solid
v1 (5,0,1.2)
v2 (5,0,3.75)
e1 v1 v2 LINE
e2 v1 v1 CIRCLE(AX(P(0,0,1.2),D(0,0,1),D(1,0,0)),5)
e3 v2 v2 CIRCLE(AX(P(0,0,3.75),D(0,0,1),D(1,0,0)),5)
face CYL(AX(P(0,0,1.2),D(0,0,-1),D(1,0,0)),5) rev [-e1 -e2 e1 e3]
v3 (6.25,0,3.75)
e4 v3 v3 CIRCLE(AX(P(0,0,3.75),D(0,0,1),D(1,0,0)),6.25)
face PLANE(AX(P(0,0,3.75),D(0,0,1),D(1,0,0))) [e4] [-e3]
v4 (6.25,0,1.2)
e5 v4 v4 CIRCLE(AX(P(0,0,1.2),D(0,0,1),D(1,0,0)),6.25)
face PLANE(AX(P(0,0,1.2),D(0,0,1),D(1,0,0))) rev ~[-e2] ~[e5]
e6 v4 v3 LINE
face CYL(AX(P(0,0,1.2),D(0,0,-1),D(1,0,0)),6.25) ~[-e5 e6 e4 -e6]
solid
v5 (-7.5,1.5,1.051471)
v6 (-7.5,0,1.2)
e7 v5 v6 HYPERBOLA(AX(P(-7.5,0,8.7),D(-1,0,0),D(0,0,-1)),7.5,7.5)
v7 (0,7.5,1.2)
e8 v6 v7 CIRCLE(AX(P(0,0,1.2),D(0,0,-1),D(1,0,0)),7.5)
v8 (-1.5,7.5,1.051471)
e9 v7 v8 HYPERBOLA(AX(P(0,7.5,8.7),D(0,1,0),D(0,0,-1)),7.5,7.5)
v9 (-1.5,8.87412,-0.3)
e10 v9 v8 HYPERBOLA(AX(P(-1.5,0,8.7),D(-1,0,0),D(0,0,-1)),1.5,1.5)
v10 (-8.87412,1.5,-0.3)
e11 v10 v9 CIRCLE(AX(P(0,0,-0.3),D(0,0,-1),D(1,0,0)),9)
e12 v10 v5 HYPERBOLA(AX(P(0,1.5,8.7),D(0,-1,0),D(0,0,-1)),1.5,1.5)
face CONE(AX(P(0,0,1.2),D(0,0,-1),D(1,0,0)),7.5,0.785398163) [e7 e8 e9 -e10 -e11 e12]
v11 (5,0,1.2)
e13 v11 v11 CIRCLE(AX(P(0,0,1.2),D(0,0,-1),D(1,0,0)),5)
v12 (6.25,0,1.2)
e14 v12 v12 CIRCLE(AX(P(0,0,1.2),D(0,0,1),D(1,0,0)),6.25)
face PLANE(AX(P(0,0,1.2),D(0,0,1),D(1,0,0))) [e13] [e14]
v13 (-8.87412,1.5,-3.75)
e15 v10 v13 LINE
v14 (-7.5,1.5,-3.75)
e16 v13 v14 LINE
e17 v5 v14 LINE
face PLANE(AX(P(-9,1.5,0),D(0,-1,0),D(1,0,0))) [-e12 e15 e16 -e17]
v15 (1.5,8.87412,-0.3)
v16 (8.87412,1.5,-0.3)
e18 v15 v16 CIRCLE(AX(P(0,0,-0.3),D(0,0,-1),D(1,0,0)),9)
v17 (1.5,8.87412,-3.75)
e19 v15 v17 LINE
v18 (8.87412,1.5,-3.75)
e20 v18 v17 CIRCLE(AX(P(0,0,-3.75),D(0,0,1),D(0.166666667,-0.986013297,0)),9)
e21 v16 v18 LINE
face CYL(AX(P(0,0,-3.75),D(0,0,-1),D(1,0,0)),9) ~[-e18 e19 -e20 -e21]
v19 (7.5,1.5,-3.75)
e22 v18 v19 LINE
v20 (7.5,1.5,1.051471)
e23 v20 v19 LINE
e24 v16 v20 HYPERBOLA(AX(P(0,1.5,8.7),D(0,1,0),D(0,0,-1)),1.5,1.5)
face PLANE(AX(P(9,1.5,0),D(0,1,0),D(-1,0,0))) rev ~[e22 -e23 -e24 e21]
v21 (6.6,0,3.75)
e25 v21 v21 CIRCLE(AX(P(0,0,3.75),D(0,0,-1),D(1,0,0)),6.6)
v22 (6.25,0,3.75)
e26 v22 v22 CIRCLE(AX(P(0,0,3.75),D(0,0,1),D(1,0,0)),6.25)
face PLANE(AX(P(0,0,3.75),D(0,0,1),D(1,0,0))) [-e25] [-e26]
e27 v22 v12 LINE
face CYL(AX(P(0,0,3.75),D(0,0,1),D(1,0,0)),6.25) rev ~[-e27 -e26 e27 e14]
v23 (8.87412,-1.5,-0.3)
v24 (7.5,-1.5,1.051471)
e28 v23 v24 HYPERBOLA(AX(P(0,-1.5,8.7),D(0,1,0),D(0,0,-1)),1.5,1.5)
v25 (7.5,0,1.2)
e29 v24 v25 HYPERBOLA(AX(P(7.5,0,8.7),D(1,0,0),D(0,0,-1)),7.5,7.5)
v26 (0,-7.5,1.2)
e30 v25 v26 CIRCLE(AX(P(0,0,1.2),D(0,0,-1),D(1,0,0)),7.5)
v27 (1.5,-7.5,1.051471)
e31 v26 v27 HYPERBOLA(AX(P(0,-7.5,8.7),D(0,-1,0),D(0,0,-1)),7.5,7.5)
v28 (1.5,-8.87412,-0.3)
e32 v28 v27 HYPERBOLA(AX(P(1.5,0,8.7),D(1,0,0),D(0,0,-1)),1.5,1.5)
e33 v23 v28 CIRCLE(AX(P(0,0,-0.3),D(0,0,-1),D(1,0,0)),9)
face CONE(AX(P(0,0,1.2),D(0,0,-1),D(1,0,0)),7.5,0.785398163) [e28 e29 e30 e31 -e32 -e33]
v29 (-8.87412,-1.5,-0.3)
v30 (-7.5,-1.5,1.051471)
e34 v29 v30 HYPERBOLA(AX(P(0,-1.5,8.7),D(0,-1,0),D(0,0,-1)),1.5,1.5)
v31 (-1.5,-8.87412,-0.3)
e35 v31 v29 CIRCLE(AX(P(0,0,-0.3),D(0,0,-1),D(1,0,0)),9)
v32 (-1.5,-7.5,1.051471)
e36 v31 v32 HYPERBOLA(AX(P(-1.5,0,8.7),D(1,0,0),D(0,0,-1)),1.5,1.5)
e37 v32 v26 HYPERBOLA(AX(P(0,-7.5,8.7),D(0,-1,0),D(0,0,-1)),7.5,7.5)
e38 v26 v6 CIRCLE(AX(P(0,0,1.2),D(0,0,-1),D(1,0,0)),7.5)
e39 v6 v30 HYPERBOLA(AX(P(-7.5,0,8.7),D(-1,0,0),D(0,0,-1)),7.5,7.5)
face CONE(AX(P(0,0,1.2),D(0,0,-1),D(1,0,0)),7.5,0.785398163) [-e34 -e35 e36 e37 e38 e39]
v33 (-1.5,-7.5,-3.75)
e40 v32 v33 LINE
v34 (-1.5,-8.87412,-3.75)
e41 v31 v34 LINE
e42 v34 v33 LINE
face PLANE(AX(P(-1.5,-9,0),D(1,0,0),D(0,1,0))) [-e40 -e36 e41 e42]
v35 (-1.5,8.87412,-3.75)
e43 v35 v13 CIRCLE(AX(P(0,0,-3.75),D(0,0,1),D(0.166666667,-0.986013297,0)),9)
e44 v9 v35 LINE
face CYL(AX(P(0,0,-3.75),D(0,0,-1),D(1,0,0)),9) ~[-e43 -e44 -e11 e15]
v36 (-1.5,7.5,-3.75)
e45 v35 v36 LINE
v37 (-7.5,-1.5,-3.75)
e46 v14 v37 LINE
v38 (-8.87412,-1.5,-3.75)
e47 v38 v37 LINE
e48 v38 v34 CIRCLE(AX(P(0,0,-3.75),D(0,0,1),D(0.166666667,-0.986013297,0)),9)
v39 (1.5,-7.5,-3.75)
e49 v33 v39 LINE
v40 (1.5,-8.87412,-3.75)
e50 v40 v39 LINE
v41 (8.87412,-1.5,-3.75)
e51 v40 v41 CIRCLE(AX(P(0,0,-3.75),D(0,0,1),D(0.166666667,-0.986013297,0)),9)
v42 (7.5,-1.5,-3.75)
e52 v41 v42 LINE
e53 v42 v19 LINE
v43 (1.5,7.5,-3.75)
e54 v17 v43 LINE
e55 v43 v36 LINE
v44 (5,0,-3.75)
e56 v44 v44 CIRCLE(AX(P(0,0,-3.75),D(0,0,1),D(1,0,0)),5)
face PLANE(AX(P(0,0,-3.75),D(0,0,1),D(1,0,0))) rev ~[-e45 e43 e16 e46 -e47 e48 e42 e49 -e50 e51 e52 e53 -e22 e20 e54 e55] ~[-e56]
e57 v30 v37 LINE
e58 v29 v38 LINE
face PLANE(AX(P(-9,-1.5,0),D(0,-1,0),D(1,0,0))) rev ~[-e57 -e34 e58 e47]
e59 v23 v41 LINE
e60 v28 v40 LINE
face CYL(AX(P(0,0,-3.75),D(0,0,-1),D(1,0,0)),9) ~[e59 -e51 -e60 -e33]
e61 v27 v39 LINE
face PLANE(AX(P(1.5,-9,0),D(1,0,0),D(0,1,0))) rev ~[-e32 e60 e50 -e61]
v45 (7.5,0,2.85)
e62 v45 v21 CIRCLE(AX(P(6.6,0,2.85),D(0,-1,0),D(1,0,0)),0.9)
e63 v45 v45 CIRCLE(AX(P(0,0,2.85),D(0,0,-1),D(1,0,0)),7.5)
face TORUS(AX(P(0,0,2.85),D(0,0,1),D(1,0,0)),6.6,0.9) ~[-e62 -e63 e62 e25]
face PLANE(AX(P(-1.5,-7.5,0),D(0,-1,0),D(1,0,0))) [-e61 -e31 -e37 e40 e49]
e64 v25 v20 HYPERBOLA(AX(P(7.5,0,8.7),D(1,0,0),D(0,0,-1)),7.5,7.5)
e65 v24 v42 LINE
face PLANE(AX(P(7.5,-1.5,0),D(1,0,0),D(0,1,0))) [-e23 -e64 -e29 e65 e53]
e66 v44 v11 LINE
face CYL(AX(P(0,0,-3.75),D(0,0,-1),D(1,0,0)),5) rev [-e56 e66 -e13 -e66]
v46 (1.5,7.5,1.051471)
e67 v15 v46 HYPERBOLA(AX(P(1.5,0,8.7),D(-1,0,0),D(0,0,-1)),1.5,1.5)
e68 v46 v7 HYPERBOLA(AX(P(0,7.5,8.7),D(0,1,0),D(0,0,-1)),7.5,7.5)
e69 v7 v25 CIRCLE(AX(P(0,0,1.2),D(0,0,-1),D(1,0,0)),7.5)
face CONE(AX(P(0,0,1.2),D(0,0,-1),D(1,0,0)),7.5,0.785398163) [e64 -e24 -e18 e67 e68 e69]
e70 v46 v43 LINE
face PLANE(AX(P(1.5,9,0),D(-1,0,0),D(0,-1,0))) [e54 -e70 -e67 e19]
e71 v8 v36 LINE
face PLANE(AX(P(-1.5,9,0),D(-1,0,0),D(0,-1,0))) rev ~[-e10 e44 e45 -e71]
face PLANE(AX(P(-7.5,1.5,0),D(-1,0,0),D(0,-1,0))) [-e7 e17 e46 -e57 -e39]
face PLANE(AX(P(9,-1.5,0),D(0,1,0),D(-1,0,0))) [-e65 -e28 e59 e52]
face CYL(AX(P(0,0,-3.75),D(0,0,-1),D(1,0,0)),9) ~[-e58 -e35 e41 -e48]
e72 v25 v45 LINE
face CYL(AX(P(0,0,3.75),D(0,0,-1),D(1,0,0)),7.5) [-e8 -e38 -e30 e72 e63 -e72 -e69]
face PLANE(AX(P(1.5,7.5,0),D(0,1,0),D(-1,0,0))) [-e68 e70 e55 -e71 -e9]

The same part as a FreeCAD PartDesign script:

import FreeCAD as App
import Part
import Sketcher
from FreeCAD import Vector
Q = App.Units.Quantity


def edges_at(feature, points):
    """Names of the edges that pass closest to the given points."""
    edges = feature.Shape.Edges
    near = lambda p: min(range(len(edges)), key=lambda i: edges[i].distToShape(Part.Vertex(*p))[0])
    return sorted({f"Edge{near(p) + 1}" for p in points})


def add_polygon(sketch, points):
    """Adds a closed chain of lines whose ends are joined by coincident constraints."""
    first, n = sketch.GeometryCount, len(points)
    for a, b in zip(points, points[1:] + points[:1]):
        sketch.addGeometry(Part.LineSegment(App.Vector(*a, 0), App.Vector(*b, 0)), False)
    for i in range(n):
        sketch.addConstraint(Sketcher.Constraint("Coincident", first + i, 2, first + (i + 1) % n, 1))

doc = App.newDocument("Part")
body = doc.addObject("PartDesign::Body", "Body")

# Sketch on XY plane
sketch1 = body.newObject("Sketcher::SketchObject", "Sketch")
sketch1.AttachmentSupport = (doc.getObject("XY_Plane"), [""])
sketch1.MapMode = "FlatFace"
sketch1.addGeometry(Part.Circle(Vector(0, 0, 0), Vector(0, 0, 1), 9), False)
sketch1.addGeometry(Part.Circle(Vector(0, 0, 0), Vector(0, 0, 1), 5), False)
sketch1.addConstraint(Sketcher.Constraint("Coincident", 0, 3, -1, 1))
sketch1.addConstraint(Sketcher.Constraint("Coincident", 1, 3, -1, 1))
sketch1.addConstraint(Sketcher.Constraint("Diameter", 0, 18.0))
sketch1.addConstraint(Sketcher.Constraint("Diameter", 1, 10.0))
pad1 = body.newObject("PartDesign::Pad", "Pad")
pad1.Profile = sketch1
pad1.Type = "TwoLengths"
pad1.Length = 3.75
pad1.Length2 = 3.75

# Sketch on XY plane
sketch2 = body.newObject("Sketcher::SketchObject", "Sketch001")
sketch2.AttachmentSupport = (doc.getObject("XY_Plane"), [""])
sketch2.MapMode = "FlatFace"
sketch2.AttachmentOffset = App.Placement(Vector(0, 0, 3.75), App.Rotation())
sketch2.addGeometry(Part.Circle(Vector(0, 0, 0), Vector(0, 0, 1), 9), False)
sketch2.addGeometry(Part.Circle(Vector(0, 0, 0), Vector(0, 0, 1), 8), False)
sketch2.addConstraint(Sketcher.Constraint("Coincident", 0, 3, -1, 1))
sketch2.addConstraint(Sketcher.Constraint("Coincident", 1, 3, -1, 1))
sketch2.addConstraint(Sketcher.Constraint("Diameter", 0, 18.0))
sketch2.addConstraint(Sketcher.Constraint("Diameter", 1, 15.0))
pocket1 = body.newObject("PartDesign::Pocket", "Pocket")
pocket1.Profile = sketch2
pocket1.Length = 0.5

# Sketch on XY plane
sketch3 = body.newObject("Sketcher::SketchObject", "Sketch002")
sketch3.AttachmentSupport = (doc.getObject("XY_Plane"), [""])
sketch3.MapMode = "FlatFace"
add_polygon(sketch3, [(-1.5, -7.5), (-1.5, -9), (1.5, -9), (1.5, -7.5)])  # lines 0-3
sketch3.addConstraint(Sketcher.Constraint("Vertical", 0))
sketch3.addConstraint(Sketcher.Constraint("Horizontal", 1))
sketch3.addConstraint(Sketcher.Constraint("Vertical", 2))
sketch3.addConstraint(Sketcher.Constraint("Horizontal", 3))
sketch3.addConstraint(Sketcher.Constraint("DistanceX", 1, 1, 1, 2, 3.0))
sketch3.addConstraint(Sketcher.Constraint("DistanceY", 0, 2, 0, 1, 1.5))
sketch3.addConstraint(Sketcher.Constraint("DistanceY", 0, 2, -1, 1, 9.0))
sketch3.addConstraint(Sketcher.Constraint("DistanceX", 0, 2, -1, 1, 1.5))
pocket2 = body.newObject("PartDesign::Pocket", "Pocket001")
pocket2.Profile = sketch3
pocket2.Length = 28.537709
pocket2.Midplane = True
doc.recompute()

polarpattern = body.newObject("PartDesign::PolarPattern", "PolarPattern")
polarpattern.Originals = [pocket2]
polarpattern.Axis = (doc.getObject("Z_Axis"), [""])
polarpattern.Angle = 360
polarpattern.Occurrences = 4
body.Tip = polarpattern

# Sketch on YZ plane
sketch4 = body.newObject("Sketcher::SketchObject", "Sketch003")
sketch4.AttachmentSupport = (doc.getObject("YZ_Plane"), [""])
sketch4.MapMode = "FlatFace"
add_polygon(sketch4, [(7.5, 1.2), (9, -0.3), (9, 3.8), (7.5, 3.8)])  # lines 0-3
sketch4.addConstraint(Sketcher.Constraint("Vertical", 1))
sketch4.addConstraint(Sketcher.Constraint("Horizontal", 2))
sketch4.addConstraint(Sketcher.Constraint("Vertical", 3))
sketch4.addConstraint(Sketcher.Constraint("Angle", 0, Q("-45 deg")))
sketch4.addConstraint(Sketcher.Constraint("DistanceX", 2, 2, 2, 1, 1.5))
sketch4.addConstraint(Sketcher.Constraint("DistanceX", -1, 1, 0, 2, 9.0))
sketch4.addConstraint(Sketcher.Constraint("DistanceY", 1, 1, 1, 2, 4.05))
sketch4.addConstraint(Sketcher.Constraint("DistanceY", 0, 2, -1, 1, 0.3))
groove = body.newObject("PartDesign::Groove", "Groove")
groove.Profile = sketch4
groove.ReferenceAxis = (sketch4, ["V_Axis"])
groove.Angle = 360
doc.recompute()

fillet = body.newObject("PartDesign::Fillet", "Fillet")
fillet.Base = (groove, edges_at(groove, [(-7.5, 0, 3.75)]))
fillet.Radius = 0.9

# Sketch on XY plane
sketch5 = body.newObject("Sketcher::SketchObject", "Sketch004")
sketch5.AttachmentSupport = (doc.getObject("XY_Plane"), [""])
sketch5.MapMode = "FlatFace"
sketch5.AttachmentOffset = App.Placement(Vector(0, 0, 3.75), App.Rotation())
sketch5.addGeometry(Part.Circle(Vector(0, 0, 0), Vector(0, 0, 1), 6), False)
sketch5.addConstraint(Sketcher.Constraint("Coincident", 0, 3, -1, 1))
sketch5.addConstraint(Sketcher.Constraint("Diameter", 0, 12.5))
pocket3 = body.newObject("PartDesign::Pocket", "Pocket002")
pocket3.Profile = sketch5
pocket3.Length = 2.55
body2 = doc.addObject("PartDesign::Body", "Body001")

# Sketch on XY plane
sketch6 = body2.newObject("Sketcher::SketchObject", "Sketch005")
sketch6.AttachmentSupport = (doc.getObject("XY_Plane001"), [""])
sketch6.MapMode = "FlatFace"
sketch6.AttachmentOffset = App.Placement(Vector(0, 0, 1.2), App.Rotation())
sketch6.addGeometry(Part.Circle(Vector(0, 0, 0), Vector(0, 0, 1), 6), False)
sketch6.addGeometry(Part.Circle(Vector(0, 0, 0), Vector(0, 0, 1), 5), False)
sketch6.addConstraint(Sketcher.Constraint("Coincident", 0, 3, -1, 1))
sketch6.addConstraint(Sketcher.Constraint("Coincident", 1, 3, -1, 1))
sketch6.addConstraint(Sketcher.Constraint("Diameter", 1, 10.0))
sketch6.addConstraint(Sketcher.Constraint("Diameter", 0, 12.5))
pad2 = body2.newObject("PartDesign::Pad", "Pad001")
pad2.Profile = sketch6
pad2.Length = 2.55

doc.recompute()
